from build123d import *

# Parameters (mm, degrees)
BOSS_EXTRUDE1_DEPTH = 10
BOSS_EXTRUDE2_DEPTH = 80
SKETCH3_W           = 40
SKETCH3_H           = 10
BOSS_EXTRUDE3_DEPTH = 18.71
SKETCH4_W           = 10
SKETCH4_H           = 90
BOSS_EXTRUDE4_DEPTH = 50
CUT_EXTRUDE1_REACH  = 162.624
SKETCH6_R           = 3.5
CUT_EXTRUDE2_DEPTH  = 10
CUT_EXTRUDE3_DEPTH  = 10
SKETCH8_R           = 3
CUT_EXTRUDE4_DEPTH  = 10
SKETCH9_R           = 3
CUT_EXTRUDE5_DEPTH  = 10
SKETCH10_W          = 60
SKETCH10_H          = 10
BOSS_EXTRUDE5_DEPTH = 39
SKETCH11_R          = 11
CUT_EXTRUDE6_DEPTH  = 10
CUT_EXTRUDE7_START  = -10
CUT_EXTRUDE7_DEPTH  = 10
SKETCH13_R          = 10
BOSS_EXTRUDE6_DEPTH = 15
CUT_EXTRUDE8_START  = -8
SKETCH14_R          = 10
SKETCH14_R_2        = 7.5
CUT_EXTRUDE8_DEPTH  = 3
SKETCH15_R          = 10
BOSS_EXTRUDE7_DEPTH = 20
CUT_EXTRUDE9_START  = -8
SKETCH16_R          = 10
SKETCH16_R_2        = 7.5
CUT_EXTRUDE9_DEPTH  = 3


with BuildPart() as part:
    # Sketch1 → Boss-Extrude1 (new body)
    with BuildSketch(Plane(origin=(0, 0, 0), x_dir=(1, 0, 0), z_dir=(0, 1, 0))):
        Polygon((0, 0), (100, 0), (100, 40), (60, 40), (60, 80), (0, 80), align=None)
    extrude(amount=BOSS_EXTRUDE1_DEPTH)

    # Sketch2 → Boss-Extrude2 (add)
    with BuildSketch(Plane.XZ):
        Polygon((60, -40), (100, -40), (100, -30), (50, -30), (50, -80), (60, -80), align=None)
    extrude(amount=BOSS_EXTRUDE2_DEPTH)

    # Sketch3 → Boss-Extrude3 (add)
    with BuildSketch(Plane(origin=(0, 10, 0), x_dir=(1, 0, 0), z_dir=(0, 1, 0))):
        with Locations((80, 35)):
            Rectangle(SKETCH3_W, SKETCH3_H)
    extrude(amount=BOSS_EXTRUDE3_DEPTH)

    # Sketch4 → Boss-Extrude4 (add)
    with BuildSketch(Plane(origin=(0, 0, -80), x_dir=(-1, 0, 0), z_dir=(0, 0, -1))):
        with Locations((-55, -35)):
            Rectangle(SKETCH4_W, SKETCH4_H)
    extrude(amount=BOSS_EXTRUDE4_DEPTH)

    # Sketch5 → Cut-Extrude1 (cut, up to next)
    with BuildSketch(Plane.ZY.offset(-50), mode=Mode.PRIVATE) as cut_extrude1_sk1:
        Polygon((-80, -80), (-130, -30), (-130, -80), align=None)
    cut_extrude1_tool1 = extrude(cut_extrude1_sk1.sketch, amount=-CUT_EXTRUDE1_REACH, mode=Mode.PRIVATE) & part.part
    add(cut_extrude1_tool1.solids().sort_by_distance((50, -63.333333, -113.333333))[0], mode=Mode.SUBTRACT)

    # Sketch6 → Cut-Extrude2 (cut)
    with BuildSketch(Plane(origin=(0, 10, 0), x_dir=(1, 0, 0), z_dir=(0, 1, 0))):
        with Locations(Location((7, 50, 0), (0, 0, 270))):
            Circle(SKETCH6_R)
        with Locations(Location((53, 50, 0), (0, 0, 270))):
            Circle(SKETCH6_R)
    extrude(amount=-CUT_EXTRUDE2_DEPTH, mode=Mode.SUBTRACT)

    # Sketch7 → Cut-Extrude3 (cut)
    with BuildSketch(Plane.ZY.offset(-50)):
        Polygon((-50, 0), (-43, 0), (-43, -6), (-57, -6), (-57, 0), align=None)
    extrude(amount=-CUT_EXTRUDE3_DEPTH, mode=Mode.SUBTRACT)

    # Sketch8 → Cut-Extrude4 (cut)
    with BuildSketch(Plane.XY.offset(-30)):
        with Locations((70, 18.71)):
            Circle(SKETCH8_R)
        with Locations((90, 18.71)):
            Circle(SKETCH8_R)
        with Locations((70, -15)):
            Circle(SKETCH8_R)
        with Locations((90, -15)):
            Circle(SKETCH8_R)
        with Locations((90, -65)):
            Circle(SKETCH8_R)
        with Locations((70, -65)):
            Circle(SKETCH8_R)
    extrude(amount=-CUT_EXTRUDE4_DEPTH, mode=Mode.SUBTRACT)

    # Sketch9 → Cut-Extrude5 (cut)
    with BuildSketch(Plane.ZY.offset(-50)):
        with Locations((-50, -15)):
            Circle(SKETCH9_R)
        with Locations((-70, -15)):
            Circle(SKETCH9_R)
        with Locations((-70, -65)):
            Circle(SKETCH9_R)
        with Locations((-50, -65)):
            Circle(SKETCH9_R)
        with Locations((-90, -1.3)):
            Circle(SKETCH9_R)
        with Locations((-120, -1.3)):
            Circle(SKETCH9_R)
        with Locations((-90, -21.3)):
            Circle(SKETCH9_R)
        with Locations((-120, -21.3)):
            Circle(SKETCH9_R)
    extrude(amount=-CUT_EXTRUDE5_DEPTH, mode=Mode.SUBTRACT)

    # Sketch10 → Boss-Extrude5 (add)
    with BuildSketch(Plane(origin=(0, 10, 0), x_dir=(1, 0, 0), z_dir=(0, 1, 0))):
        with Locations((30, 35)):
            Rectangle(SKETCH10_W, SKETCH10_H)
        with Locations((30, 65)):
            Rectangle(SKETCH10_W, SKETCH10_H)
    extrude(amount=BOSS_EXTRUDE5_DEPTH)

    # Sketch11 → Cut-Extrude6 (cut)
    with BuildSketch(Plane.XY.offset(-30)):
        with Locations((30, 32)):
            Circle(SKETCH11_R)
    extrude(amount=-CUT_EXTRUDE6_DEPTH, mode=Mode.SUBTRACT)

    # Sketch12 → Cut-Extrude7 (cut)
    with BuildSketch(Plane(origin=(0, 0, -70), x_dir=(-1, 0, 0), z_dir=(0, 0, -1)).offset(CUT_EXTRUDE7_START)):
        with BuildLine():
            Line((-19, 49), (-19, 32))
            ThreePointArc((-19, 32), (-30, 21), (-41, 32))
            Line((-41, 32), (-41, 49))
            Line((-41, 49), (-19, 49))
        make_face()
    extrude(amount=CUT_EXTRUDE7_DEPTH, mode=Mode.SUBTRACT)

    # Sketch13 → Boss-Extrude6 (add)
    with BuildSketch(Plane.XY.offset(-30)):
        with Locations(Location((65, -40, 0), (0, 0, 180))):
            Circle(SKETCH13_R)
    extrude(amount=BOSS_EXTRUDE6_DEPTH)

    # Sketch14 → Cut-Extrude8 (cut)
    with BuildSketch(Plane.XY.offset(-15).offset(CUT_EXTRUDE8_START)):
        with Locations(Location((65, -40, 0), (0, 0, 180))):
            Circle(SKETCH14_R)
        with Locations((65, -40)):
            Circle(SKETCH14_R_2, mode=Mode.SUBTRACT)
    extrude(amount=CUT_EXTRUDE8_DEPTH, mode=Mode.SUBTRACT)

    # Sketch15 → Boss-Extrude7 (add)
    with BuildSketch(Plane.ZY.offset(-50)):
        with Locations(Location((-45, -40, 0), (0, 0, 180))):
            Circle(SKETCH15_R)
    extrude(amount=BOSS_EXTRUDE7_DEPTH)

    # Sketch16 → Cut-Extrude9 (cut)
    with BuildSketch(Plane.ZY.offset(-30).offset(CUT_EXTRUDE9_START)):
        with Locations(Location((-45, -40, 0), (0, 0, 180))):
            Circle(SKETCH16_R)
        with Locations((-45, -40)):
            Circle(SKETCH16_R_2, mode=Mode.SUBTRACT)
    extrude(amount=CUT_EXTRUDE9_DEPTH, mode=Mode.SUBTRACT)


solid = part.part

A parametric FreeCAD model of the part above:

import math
import FreeCAD as App
import Part
import Sketcher
from FreeCAD import Vector


def add_polygon(sketch, points):
    """Adds a closed chain of lines whose ends are joined by coincident constraints."""
    first, n = sketch.GeometryCount, len(points)
    for a, b in zip(points, points[1:] + points[:1]):
        sketch.addGeometry(Part.LineSegment(App.Vector(*a, 0), App.Vector(*b, 0)), False)
    for i in range(n):
        sketch.addConstraint(Sketcher.Constraint("Coincident", first + i, 2, first + (i + 1) % n, 1))

doc = App.newDocument("Part")
params = doc.addObject("Spreadsheet::Sheet", "Params")
for row, (alias, value) in enumerate([
    ("sketch1_width", "100 mm"),
    ("sketch1_width2", "40 mm"),
    ("pad1_length", "10 mm"),
    ("sketch2_width", "40 mm"),
    ("sketch2_width2", "50 mm"),
    ("pad2_length", "80 mm"),
    ("sketch3_width", "40 mm"),
    ("sketch3_height", "10 mm"),
    ("pad3_length", "18.71 mm"),
    ("sketch4_width", "10 mm"),
    ("sketch4_height", "90 mm"),
    ("pad4_length", "50 mm"),
    ("sketch5_width", "50 mm"),
    ("sketch6_diameter", "7 mm"),
    ("pocket2_length", "10 mm"),
    ("sketch7_width", "6 mm"),
    ("sketch7_height", "14 mm"),
    ("pocket3_length", "10 mm"),
    ("sketch8_diameter", "6 mm"),
    ("pocket4_length", "10 mm"),
    ("sketch9_diameter", "6 mm"),
    ("pocket5_length", "10 mm"),
    ("sketch10_width", "60 mm"),
    ("sketch10_height", "10 mm"),
    ("pad5_length", "39 mm"),
    ("sketch11_diameter", "22 mm"),
    ("pocket6_length", "10 mm"),
    ("sketch12_radius", "11 mm"),
    ("sketch12_height", "17 mm"),
    ("pocket7_length", "10 mm"),
    ("sketch13_diameter", "20 mm"),
    ("pad6_length", "15 mm"),
    ("sketch14_diameter", "20 mm"),
    ("sketch14_diameter2", "15 mm"),
    ("pocket8_length", "3 mm"),
    ("sketch15_diameter", "20 mm"),
    ("pad7_length", "20 mm"),
    ("sketch16_diameter", "20 mm"),
    ("sketch16_diameter2", "15 mm"),
    ("pocket9_length", "3 mm"),
], start=1):
    params.set(f"A{row}", alias)
    params.set(f"B{row}", "=" + value)
    params.setAlias(f"B{row}", alias)

body = doc.addObject("PartDesign::Body", "Body")

# Sketch on XZ plane
sketch1 = body.newObject("Sketcher::SketchObject", "Sketch")
sketch1.AttachmentSupport = (doc.getObject("XZ_Plane"), [""])
sketch1.MapMode = "FlatFace"
add_polygon(sketch1, [(0, 0), (100, 0), (100, -40), (60, -40), (60, -80), (0, -80)])  # lines 0-5
sketch1.addConstraint([
    Sketcher.Constraint("Horizontal", 0),
    Sketcher.Constraint("Vertical", 1),
    Sketcher.Constraint("Horizontal", 2),
    Sketcher.Constraint("Vertical", 3),
    Sketcher.Constraint("Horizontal", 4),
    Sketcher.Constraint("Vertical", 5),
    Sketcher.Constraint("Coincident", 5, 2, -1, 1),
    Sketcher.Constraint("Equal", 2, 1),
    Sketcher.Constraint("Equal", 1, 3),
    Sketcher.Constraint("DistanceX", 0, 1, 0, 2, 100.0),
    Sketcher.Constraint("DistanceX", 2, 2, 2, 1, 40.0),
])
sketch1.setExpression("Constraints[15]", "Params.sketch1_width")
sketch1.setExpression("Constraints[16]", "Params.sketch1_width2")
pad1 = body.newObject("PartDesign::Pad", "Pad")
pad1.Profile = sketch1
pad1.setExpression("Length", "Params.pad1_length")
pad1.Reversed = True

# Sketch on XZ plane
sketch2 = body.newObject("Sketcher::SketchObject", "Sketch001")
sketch2.AttachmentSupport = (doc.getObject("XZ_Plane"), [""])
sketch2.MapMode = "FlatFace"
add_polygon(sketch2, [(60, -40), (100, -40), (100, -30), (50, -30), (50, -80), (60, -80)])  # lines 0-5
sketch2.addConstraint([
    Sketcher.Constraint("Horizontal", 0),
    Sketcher.Constraint("Vertical", 1),
    Sketcher.Constraint("Horizontal", 2),
    Sketcher.Constraint("Vertical", 3),
    Sketcher.Constraint("Horizontal", 4),
    Sketcher.Constraint("Vertical", 5),
    Sketcher.Constraint("Equal", 4, 1),
    Sketcher.Constraint("Equal", 2, 3),
    Sketcher.Constraint("DistanceX", 0, 1, 0, 2, 40.0),
    Sketcher.Constraint("DistanceX", 2, 2, 2, 1, 50.0),
    Sketcher.Constraint("DistanceX", -1, 1, 0, 2, 100.0),
    Sketcher.Constraint("DistanceY", 0, 2, -1, 1, 40.0),
])
sketch2.setExpression("Constraints[14]", "Params.sketch2_width")
sketch2.setExpression("Constraints[15]", "Params.sketch2_width2")
pad2 = body.newObject("PartDesign::Pad", "Pad001")
pad2.Profile = sketch2
pad2.setExpression("Length", "Params.pad2_length")

# Sketch on XZ plane
sketch3 = body.newObject("Sketcher::SketchObject", "Sketch002")
sketch3.AttachmentSupport = (doc.getObject("XZ_Plane"), [""])
sketch3.MapMode = "FlatFace"
sketch3.AttachmentOffset = App.Placement(Vector(0, 0, -10), App.Rotation())
add_polygon(sketch3, [(60, -40), (60, -30), (100, -30), (100, -40)])  # lines 0-3
sketch3.addConstraint([
    Sketcher.Constraint("Vertical", 0),
    Sketcher.Constraint("Horizontal", 1),
    Sketcher.Constraint("Vertical", 2),
    Sketcher.Constraint("Horizontal", 3),
    Sketcher.Constraint("DistanceX", 1, 1, 1, 2, 40.0),
    Sketcher.Constraint("DistanceY", 0, 1, 0, 2, 10.0),
    Sketcher.Constraint("DistanceX", -1, 1, 0, 2, 60.0),
    Sketcher.Constraint("DistanceY", 0, 2, -1, 1, 30.0),
])
sketch3.setExpression("Constraints[8]", "Params.sketch3_width")
sketch3.setExpression("Constraints[9]", "Params.sketch3_height")
pad3 = body.newObject("PartDesign::Pad", "Pad002")
pad3.Profile = sketch3
pad3.setExpression("Length", "Params.pad3_length")
pad3.Reversed = True

# Sketch on XY plane
sketch4 = body.newObject("Sketcher::SketchObject", "Sketch003")
sketch4.AttachmentSupport = (doc.getObject("XY_Plane"), [""])
sketch4.MapMode = "FlatFace"
sketch4.AttachmentOffset = App.Placement(Vector(0, 0, -80), App.Rotation())
add_polygon(sketch4, [(60, 10), (60, -80), (50, -80), (50, 10)])  # lines 0-3
sketch4.addConstraint([
    Sketcher.Constraint("Vertical", 0),
    Sketcher.Constraint("Horizontal", 1),
    Sketcher.Constraint("Vertical", 2),
    Sketcher.Constraint("Horizontal", 3),
    Sketcher.Constraint("DistanceX", 1, 2, 1, 1, 10.0),
    Sketcher.Constraint("DistanceY", 0, 2, 0, 1, 90.0),
    Sketcher.Constraint("DistanceX", -1, 1, 0, 2, 60.0),
    Sketcher.Constraint("DistanceY", 0, 2, -1, 1, 80.0),
])
sketch4.setExpression("Constraints[8]", "Params.sketch4_width")
sketch4.setExpression("Constraints[9]", "Params.sketch4_height")
pad4 = body.newObject("PartDesign::Pad", "Pad003")
pad4.Profile = sketch4
pad4.setExpression("Length", "Params.pad4_length")
pad4.Reversed = True

# Sketch on YZ plane
sketch5 = body.newObject("Sketcher::SketchObject", "Sketch004")
sketch5.AttachmentSupport = (doc.getObject("YZ_Plane"), [""])
sketch5.MapMode = "FlatFace"
sketch5.AttachmentOffset = App.Placement(Vector(0, 0, 50), App.Rotation())
add_polygon(sketch5, [(-80, -80), (-30, -130), (-80, -130)])  # lines 0-2
sketch5.addConstraint([
    Sketcher.Constraint("Horizontal", 1),
    Sketcher.Constraint("Vertical", 2),
    Sketcher.Constraint("Equal", 1, 2),
    Sketcher.Constraint("DistanceX", 1, 2, 1, 1, 50.0),
    Sketcher.Constraint("DistanceX", 0, 2, -1, 1, 30.0),
    Sketcher.Constraint("DistanceY", 0, 2, -1, 1, 130.0),
])
sketch5.setExpression("Constraints[6]", "Params.sketch5_width")
pocket1 = body.newObject("PartDesign::Pocket", "Pocket")
pocket1.Profile = sketch5
pocket1.Type = "UpToFirst"
pocket1.Reversed = True

# Sketch on XZ plane
sketch6 = body.newObject("Sketcher::SketchObject", "Sketch005")
sketch6.AttachmentSupport = (doc.getObject("XZ_Plane"), [""])
sketch6.MapMode = "FlatFace"
sketch6.AttachmentOffset = App.Placement(Vector(0, 0, -10), App.Rotation())
sketch6.addGeometry([
    Part.Circle(Vector(7, -50, 0), Vector(0, 0, 1), 3.5),
    Part.Circle(Vector(53, -50, 0), Vector(0, 0, 1), 3.5),
], False)
sketch6.addConstraint([
    Sketcher.Constraint("Equal", 0, 1),
    Sketcher.Constraint("Horizontal", 0, 3, 1, 3),
    Sketcher.Constraint("Diameter", 0, 7.0),
    Sketcher.Constraint("DistanceX", -1, 1, 0, 3, 7.0),
    Sketcher.Constraint("DistanceY", 0, 3, -1, 1, 50.0),
    Sketcher.Constraint("DistanceX", -1, 1, 1, 3, 53.0),
])
sketch6.setExpression("Constraints[2]", "Params.sketch6_diameter")
pocket2 = body.newObject("PartDesign::Pocket", "Pocket001")
pocket2.Profile = sketch6
pocket2.setExpression("Length", "Params.pocket2_length")
pocket2.Reversed = True

# Sketch on YZ plane
sketch7 = body.newObject("Sketcher::SketchObject", "Sketch006")
sketch7.AttachmentSupport = (doc.getObject("YZ_Plane"), [""])
sketch7.MapMode = "FlatFace"
sketch7.AttachmentOffset = App.Placement(Vector(0, 0, 50), App.Rotation())
add_polygon(sketch7, [(0, -43), (0, -57), (-6, -57), (-6, -43)])  # lines 0-3
sketch7.addConstraint([
    Sketcher.Constraint("Vertical", 0),
    Sketcher.Constraint("Horizontal", 1),
    Sketcher.Constraint("Vertical", 2),
    Sketcher.Constraint("Horizontal", 3),
    Sketcher.Constraint("PointOnObject", 0, 2, -2),
    Sketcher.Constraint("DistanceX", 1, 2, 1, 1, 6.0),
    Sketcher.Constraint("DistanceY", 0, 2, 0, 1, 14.0),
    Sketcher.Constraint("DistanceY", 0, 2, -1, 1, 57.0),
])
sketch7.setExpression("Constraints[9]", "Params.sketch7_width")
sketch7.setExpression("Constraints[10]", "Params.sketch7_height")
pocket3 = body.newObject("PartDesign::Pocket", "Pocket002")
pocket3.Profile = sketch7
pocket3.setExpression("Length", "Params.pocket3_length")
pocket3.Reversed = True

# Sketch on XY plane
sketch8 = body.newObject("Sketcher::SketchObject", "Sketch007")
sketch8.AttachmentSupport = (doc.getObject("XY_Plane"), [""])
sketch8.MapMode = "FlatFace"
sketch8.AttachmentOffset = App.Placement(Vector(0, 0, -30), App.Rotation())
sketch8.addGeometry([
    Part.Circle(Vector(70, 18.7, 0), Vector(0, 0, 1), 3),  # 0
    Part.Circle(Vector(90, 18.7, 0), Vector(0, 0, 1), 3),  # 1
    Part.Circle(Vector(70, -15, 0), Vector(0, 0, 1), 3),  # 2
    Part.Circle(Vector(90, -15, 0), Vector(0, 0, 1), 3),  # 3
    Part.Circle(Vector(90, -65, 0), Vector(0, 0, 1), 3),  # 4
    Part.Circle(Vector(70, -65, 0), Vector(0, 0, 1), 3),  # 5
], False)
sketch8.addConstraint([
    Sketcher.Constraint("Equal", 0, 1),
    Sketcher.Constraint("Equal", 1, 2),
    Sketcher.Constraint("Equal", 2, 3),
    Sketcher.Constraint("Equal", 3, 4),
    Sketcher.Constraint("Equal", 4, 5),
    Sketcher.Constraint("Horizontal", 0, 3, 1, 3),
    Sketcher.Constraint("Horizontal", 2, 3, 3, 3),
    Sketcher.Constraint("Horizontal", 4, 3, 5, 3),
    Sketcher.Constraint("Vertical", 0, 3, 2, 3),
    Sketcher.Constraint("Vertical", 1, 3, 3, 3),
    Sketcher.Constraint("Vertical", 3, 3, 4, 3),
    Sketcher.Constraint("Vertical", 2, 3, 5, 3),
    Sketcher.Constraint("Diameter", 0, 6.0),
    Sketcher.Constraint("DistanceX", -1, 1, 0, 3, 70.0),
    Sketcher.Constraint("DistanceX", -1, 1, 1, 3, 90.0),
    Sketcher.Constraint("DistanceY", 2, 3, -1, 1, 15.0),
    Sketcher.Constraint("DistanceY", 4, 3, -1, 1, 65.0),
    Sketcher.Constraint("DistanceY", -1, 1, 0, 3, 18.71),
])
sketch8.setExpression("Constraints[12]", "Params.sketch8_diameter")
pocket4 = body.newObject("PartDesign::Pocket", "Pocket003")
pocket4.Profile = sketch8
pocket4.setExpression("Length", "Params.pocket4_length")

# Sketch on YZ plane
sketch9 = body.newObject("Sketcher::SketchObject", "Sketch008")
sketch9.AttachmentSupport = (doc.getObject("YZ_Plane"), [""])
sketch9.MapMode = "FlatFace"
sketch9.AttachmentOffset = App.Placement(Vector(0, 0, 50), App.Rotation())
sketch9.addGeometry([
    Part.Circle(Vector(-15, -50, 0), Vector(0, 0, 1), 3),  # 0
    Part.Circle(Vector(-15, -70, 0), Vector(0, 0, 1), 3),  # 1
    Part.Circle(Vector(-65, -70, 0), Vector(0, 0, 1), 3),  # 2
    Part.Circle(Vector(-65, -50, 0), Vector(0, 0, 1), 3),  # 3
    Part.Circle(Vector(-1.3, -90, 0), Vector(0, 0, 1), 3),  # 4
    Part.Circle(Vector(-1.3, -120, 0), Vector(0, 0, 1), 3),  # 5
    Part.Circle(Vector(-21.3, -90, 0), Vector(0, 0, 1), 3),  # 6
    Part.Circle(Vector(-21.3, -120, 0), Vector(0, 0, 1), 3),  # 7
], False)
sketch9.addConstraint([
    Sketcher.Constraint("Equal", 0, 1),
    Sketcher.Constraint("Equal", 1, 2),
    Sketcher.Constraint("Equal", 2, 3),
    Sketcher.Constraint("Equal", 3, 4),
    Sketcher.Constraint("Equal", 4, 5),
    Sketcher.Constraint("Equal", 5, 6),
    Sketcher.Constraint("Equal", 6, 7),
    Sketcher.Constraint("Horizontal", 1, 3, 2, 3),
    Sketcher.Constraint("Horizontal", 0, 3, 3, 3),
    Sketcher.Constraint("Horizontal", 4, 3, 6, 3),
    Sketcher.Constraint("Horizontal", 5, 3, 7, 3),
    Sketcher.Constraint("Vertical", 0, 3, 1, 3),
    Sketcher.Constraint("Vertical", 2, 3, 3, 3),
    Sketcher.Constraint("Vertical", 4, 3, 5, 3),
    Sketcher.Constraint("Vertical", 6, 3, 7, 3),
    Sketcher.Constraint("Diameter", 0, 6.0),
    Sketcher.Constraint("DistanceX", 0, 3, -1, 1, 15.0),
    Sketcher.Constraint("DistanceY", 0, 3, -1, 1, 50.0),
    Sketcher.Constraint("DistanceY", 1, 3, -1, 1, 70.0),
    Sketcher.Constraint("DistanceX", 2, 3, -1, 1, 65.0),
    Sketcher.Constraint("DistanceY", 4, 3, -1, 1, 90.0),
    Sketcher.Constraint("DistanceY", 5, 3, -1, 1, 120.0),
    Sketcher.Constraint("DistanceX", 6, 3, 4, 3, 20.0),
    Sketcher.Constraint("DistanceX", 4, 3, -1, 1, 1.3),
])
sketch9.setExpression("Constraints[15]", "Params.sketch9_diameter")
pocket5 = body.newObject("PartDesign::Pocket", "Pocket004")
pocket5.Profile = sketch9
pocket5.setExpression("Length", "Params.pocket5_length")
pocket5.Reversed = True

# Sketch on XZ plane
sketch10 = body.newObject("Sketcher::SketchObject", "Sketch009")
sketch10.AttachmentSupport = (doc.getObject("XZ_Plane"), [""])
sketch10.MapMode = "FlatFace"
sketch10.AttachmentOffset = App.Placement(Vector(0, 0, -10), App.Rotation())
add_polygon(sketch10, [(0, -40), (0, -30), (60, -30), (60, -40)])  # lines 0-3
add_polygon(sketch10, [(0, -70), (0, -60), (60, -60), (60, -70)])  # lines 4-7
sketch10.addConstraint([
    Sketcher.Constraint("Vertical", 0),
    Sketcher.Constraint("Horizontal", 1),
    Sketcher.Constraint("Vertical", 2),
    Sketcher.Constraint("Horizontal", 3),
    Sketcher.Constraint("Vertical", 4),
    Sketcher.Constraint("Horizontal", 5),
    Sketcher.Constraint("Vertical", 6),
    Sketcher.Constraint("Horizontal", 7),
    Sketcher.Constraint("PointOnObject", 0, 2, -2),
    Sketcher.Constraint("PointOnObject", 4, 2, -2),
    Sketcher.Constraint("Vertical", 2, 2, 5, 2),
    Sketcher.Constraint("Equal", 2, 4),
    Sketcher.Constraint("DistanceX", 1, 1, 1, 2, 60.0),
    Sketcher.Constraint("DistanceY", 0, 1, 0, 2, 10.0),
    Sketcher.Constraint("DistanceY", 0, 2, -1, 1, 30.0),
    Sketcher.Constraint("DistanceY", 4, 2, -1, 1, 60.0),
])
sketch10.setExpression("Constraints[20]", "Params.sketch10_width")
sketch10.setExpression("Constraints[21]", "Params.sketch10_height")
pad5 = body.newObject("PartDesign::Pad", "Pad004")
pad5.Profile = sketch10
pad5.setExpression("Length", "Params.pad5_length")
pad5.Reversed = True

# Sketch on XY plane
sketch11 = body.newObject("Sketcher::SketchObject", "Sketch010")
sketch11.AttachmentSupport = (doc.getObject("XY_Plane"), [""])
sketch11.MapMode = "FlatFace"
sketch11.AttachmentOffset = App.Placement(Vector(0, 0, -30), App.Rotation())
sketch11.addGeometry(Part.Circle(Vector(30, 32, 0), Vector(0, 0, 1), 11), False)
sketch11.addConstraint([
    Sketcher.Constraint("Diameter", 0, 22.0),
    Sketcher.Constraint("DistanceX", -1, 1, 0, 3, 30.0),
    Sketcher.Constraint("DistanceY", -1, 1, 0, 3, 32.0),
])
sketch11.setExpression("Constraints[0]", "Params.sketch11_diameter")
pocket6 = body.newObject("PartDesign::Pocket", "Pocket005")
pocket6.Profile = sketch11
pocket6.setExpression("Length", "Params.pocket6_length")

# Sketch on XY plane
sketch12 = body.newObject("Sketcher::SketchObject", "Sketch011")
sketch12.AttachmentSupport = (doc.getObject("XY_Plane"), [""])
sketch12.MapMode = "FlatFace"
sketch12.AttachmentOffset = App.Placement(Vector(0, 0, -60), App.Rotation())
sketch12.addGeometry([
    Part.LineSegment(Vector(19, 32, 0), Vector(19, 49, 0)),
    Part.LineSegment(Vector(19, 49, 0), Vector(41, 49, 0)),
    Part.LineSegment(Vector(41, 49, 0), Vector(41, 32, 0)),
    Part.ArcOfCircle(Part.Circle(Vector(30, 32, 0), Vector(0, 0, 1), 11), math.radians(180), math.radians(360)),
], False)
sketch12.addConstraint([
    Sketcher.Constraint("Coincident", 0, 2, 1, 1),
    Sketcher.Constraint("Coincident", 1, 2, 2, 1),
    Sketcher.Constraint("Tangent", 2, 2, 3, 2),
    Sketcher.Constraint("Tangent", 3, 1, 0, 1),
    Sketcher.Constraint("Vertical", 0),
    Sketcher.Constraint("Horizontal", 1),
    Sketcher.Constraint("Vertical", 2),
    Sketcher.Constraint("Radius", 3, 11.0),
    Sketcher.Constraint("DistanceY", 0, 1, 0, 2, 17.0),
    Sketcher.Constraint("DistanceX", -1, 1, 3, 3, 30.0),
    Sketcher.Constraint("DistanceY", -1, 1, 3, 3, 32.0),
])
sketch12.setExpression("Constraints[7]", "Params.sketch12_radius")
sketch12.setExpression("Constraints[8]", "Params.sketch12_height")
pocket7 = body.newObject("PartDesign::Pocket", "Pocket006")
pocket7.Profile = sketch12
pocket7.setExpression("Length", "Params.pocket7_length")

# Sketch on XY plane
sketch13 = body.newObject("Sketcher::SketchObject", "Sketch012")
sketch13.AttachmentSupport = (doc.getObject("XY_Plane"), [""])
sketch13.MapMode = "FlatFace"
sketch13.AttachmentOffset = App.Placement(Vector(0, 0, -30), App.Rotation())
sketch13.addGeometry(Part.Circle(Vector(65, -40, 0), Vector(0, 0, 1), 10), False)
sketch13.addConstraint([
    Sketcher.Constraint("Diameter", 0, 20.0),
    Sketcher.Constraint("DistanceX", -1, 1, 0, 3, 65.0),
    Sketcher.Constraint("DistanceY", 0, 3, -1, 1, 40.0),
])
sketch13.setExpression("Constraints[0]", "Params.sketch13_diameter")
pad6 = body.newObject("PartDesign::Pad", "Pad005")
pad6.Profile = sketch13
pad6.setExpression("Length", "Params.pad6_length")

# Sketch on XY plane
sketch14 = body.newObject("Sketcher::SketchObject", "Sketch013")
sketch14.AttachmentSupport = (doc.getObject("XY_Plane"), [""])
sketch14.MapMode = "FlatFace"
sketch14.AttachmentOffset = App.Placement(Vector(0, 0, -23), App.Rotation())
sketch14.addGeometry([
    Part.Circle(Vector(65, -40, 0), Vector(0, 0, 1), 10),
    Part.Circle(Vector(65, -40, 0), Vector(0, 0, 1), 8),
], False)
sketch14.addConstraint([
    Sketcher.Constraint("Coincident", 1, 3, 0, 3),
    Sketcher.Constraint("Diameter", 0, 20.0),
    Sketcher.Constraint("Diameter", 1, 15.0),
    Sketcher.Constraint("DistanceX", -1, 1, 0, 3, 65.0),
    Sketcher.Constraint("DistanceY", 0, 3, -1, 1, 40.0),
])
sketch14.setExpression("Constraints[1]", "Params.sketch14_diameter")
sketch14.setExpression("Constraints[2]", "Params.sketch14_diameter2")
pocket8 = body.newObject("PartDesign::Pocket", "Pocket007")
pocket8.Profile = sketch14
pocket8.setExpression("Length", "Params.pocket8_length")
pocket8.Reversed = True

# Sketch on YZ plane
sketch15 = body.newObject("Sketcher::SketchObject", "Sketch014")
sketch15.AttachmentSupport = (doc.getObject("YZ_Plane"), [""])
sketch15.MapMode = "FlatFace"
sketch15.AttachmentOffset = App.Placement(Vector(0, 0, 50), App.Rotation())
sketch15.addGeometry(Part.Circle(Vector(-40, -45, 0), Vector(0, 0, 1), 10), False)
sketch15.addConstraint([
    Sketcher.Constraint("Diameter", 0, 20.0),
    Sketcher.Constraint("DistanceX", 0, 3, -1, 1, 40.0),
    Sketcher.Constraint("DistanceY", 0, 3, -1, 1, 45.0),
])
sketch15.setExpression("Constraints[0]", "Params.sketch15_diameter")
pad7 = body.newObject("PartDesign::Pad", "Pad006")
pad7.Profile = sketch15
pad7.setExpression("Length", "Params.pad7_length")
pad7.Reversed = True

# Sketch on YZ plane
sketch16 = body.newObject("Sketcher::SketchObject", "Sketch015")
sketch16.AttachmentSupport = (doc.getObject("YZ_Plane"), [""])
sketch16.MapMode = "FlatFace"
sketch16.AttachmentOffset = App.Placement(Vector(0, 0, 38), App.Rotation())
sketch16.addGeometry([
    Part.Circle(Vector(-40, -45, 0), Vector(0, 0, 1), 10),
    Part.Circle(Vector(-40, -45, 0), Vector(0, 0, 1), 8),
], False)
sketch16.addConstraint([
    Sketcher.Constraint("Coincident", 1, 3, 0, 3),
    Sketcher.Constraint("Diameter", 0, 20.0),
    Sketcher.Constraint("Diameter", 1, 15.0),
    Sketcher.Constraint("DistanceX", 0, 3, -1, 1, 40.0),
    Sketcher.Constraint("DistanceY", 0, 3, -1, 1, 45.0),
])
sketch16.setExpression("Constraints[1]", "Params.sketch16_diameter")
sketch16.setExpression("Constraints[2]", "Params.sketch16_diameter2")
pocket9 = body.newObject("PartDesign::Pocket", "Pocket008")
pocket9.Profile = sketch16
pocket9.setExpression("Length", "Params.pocket9_length")

doc.recompute()
